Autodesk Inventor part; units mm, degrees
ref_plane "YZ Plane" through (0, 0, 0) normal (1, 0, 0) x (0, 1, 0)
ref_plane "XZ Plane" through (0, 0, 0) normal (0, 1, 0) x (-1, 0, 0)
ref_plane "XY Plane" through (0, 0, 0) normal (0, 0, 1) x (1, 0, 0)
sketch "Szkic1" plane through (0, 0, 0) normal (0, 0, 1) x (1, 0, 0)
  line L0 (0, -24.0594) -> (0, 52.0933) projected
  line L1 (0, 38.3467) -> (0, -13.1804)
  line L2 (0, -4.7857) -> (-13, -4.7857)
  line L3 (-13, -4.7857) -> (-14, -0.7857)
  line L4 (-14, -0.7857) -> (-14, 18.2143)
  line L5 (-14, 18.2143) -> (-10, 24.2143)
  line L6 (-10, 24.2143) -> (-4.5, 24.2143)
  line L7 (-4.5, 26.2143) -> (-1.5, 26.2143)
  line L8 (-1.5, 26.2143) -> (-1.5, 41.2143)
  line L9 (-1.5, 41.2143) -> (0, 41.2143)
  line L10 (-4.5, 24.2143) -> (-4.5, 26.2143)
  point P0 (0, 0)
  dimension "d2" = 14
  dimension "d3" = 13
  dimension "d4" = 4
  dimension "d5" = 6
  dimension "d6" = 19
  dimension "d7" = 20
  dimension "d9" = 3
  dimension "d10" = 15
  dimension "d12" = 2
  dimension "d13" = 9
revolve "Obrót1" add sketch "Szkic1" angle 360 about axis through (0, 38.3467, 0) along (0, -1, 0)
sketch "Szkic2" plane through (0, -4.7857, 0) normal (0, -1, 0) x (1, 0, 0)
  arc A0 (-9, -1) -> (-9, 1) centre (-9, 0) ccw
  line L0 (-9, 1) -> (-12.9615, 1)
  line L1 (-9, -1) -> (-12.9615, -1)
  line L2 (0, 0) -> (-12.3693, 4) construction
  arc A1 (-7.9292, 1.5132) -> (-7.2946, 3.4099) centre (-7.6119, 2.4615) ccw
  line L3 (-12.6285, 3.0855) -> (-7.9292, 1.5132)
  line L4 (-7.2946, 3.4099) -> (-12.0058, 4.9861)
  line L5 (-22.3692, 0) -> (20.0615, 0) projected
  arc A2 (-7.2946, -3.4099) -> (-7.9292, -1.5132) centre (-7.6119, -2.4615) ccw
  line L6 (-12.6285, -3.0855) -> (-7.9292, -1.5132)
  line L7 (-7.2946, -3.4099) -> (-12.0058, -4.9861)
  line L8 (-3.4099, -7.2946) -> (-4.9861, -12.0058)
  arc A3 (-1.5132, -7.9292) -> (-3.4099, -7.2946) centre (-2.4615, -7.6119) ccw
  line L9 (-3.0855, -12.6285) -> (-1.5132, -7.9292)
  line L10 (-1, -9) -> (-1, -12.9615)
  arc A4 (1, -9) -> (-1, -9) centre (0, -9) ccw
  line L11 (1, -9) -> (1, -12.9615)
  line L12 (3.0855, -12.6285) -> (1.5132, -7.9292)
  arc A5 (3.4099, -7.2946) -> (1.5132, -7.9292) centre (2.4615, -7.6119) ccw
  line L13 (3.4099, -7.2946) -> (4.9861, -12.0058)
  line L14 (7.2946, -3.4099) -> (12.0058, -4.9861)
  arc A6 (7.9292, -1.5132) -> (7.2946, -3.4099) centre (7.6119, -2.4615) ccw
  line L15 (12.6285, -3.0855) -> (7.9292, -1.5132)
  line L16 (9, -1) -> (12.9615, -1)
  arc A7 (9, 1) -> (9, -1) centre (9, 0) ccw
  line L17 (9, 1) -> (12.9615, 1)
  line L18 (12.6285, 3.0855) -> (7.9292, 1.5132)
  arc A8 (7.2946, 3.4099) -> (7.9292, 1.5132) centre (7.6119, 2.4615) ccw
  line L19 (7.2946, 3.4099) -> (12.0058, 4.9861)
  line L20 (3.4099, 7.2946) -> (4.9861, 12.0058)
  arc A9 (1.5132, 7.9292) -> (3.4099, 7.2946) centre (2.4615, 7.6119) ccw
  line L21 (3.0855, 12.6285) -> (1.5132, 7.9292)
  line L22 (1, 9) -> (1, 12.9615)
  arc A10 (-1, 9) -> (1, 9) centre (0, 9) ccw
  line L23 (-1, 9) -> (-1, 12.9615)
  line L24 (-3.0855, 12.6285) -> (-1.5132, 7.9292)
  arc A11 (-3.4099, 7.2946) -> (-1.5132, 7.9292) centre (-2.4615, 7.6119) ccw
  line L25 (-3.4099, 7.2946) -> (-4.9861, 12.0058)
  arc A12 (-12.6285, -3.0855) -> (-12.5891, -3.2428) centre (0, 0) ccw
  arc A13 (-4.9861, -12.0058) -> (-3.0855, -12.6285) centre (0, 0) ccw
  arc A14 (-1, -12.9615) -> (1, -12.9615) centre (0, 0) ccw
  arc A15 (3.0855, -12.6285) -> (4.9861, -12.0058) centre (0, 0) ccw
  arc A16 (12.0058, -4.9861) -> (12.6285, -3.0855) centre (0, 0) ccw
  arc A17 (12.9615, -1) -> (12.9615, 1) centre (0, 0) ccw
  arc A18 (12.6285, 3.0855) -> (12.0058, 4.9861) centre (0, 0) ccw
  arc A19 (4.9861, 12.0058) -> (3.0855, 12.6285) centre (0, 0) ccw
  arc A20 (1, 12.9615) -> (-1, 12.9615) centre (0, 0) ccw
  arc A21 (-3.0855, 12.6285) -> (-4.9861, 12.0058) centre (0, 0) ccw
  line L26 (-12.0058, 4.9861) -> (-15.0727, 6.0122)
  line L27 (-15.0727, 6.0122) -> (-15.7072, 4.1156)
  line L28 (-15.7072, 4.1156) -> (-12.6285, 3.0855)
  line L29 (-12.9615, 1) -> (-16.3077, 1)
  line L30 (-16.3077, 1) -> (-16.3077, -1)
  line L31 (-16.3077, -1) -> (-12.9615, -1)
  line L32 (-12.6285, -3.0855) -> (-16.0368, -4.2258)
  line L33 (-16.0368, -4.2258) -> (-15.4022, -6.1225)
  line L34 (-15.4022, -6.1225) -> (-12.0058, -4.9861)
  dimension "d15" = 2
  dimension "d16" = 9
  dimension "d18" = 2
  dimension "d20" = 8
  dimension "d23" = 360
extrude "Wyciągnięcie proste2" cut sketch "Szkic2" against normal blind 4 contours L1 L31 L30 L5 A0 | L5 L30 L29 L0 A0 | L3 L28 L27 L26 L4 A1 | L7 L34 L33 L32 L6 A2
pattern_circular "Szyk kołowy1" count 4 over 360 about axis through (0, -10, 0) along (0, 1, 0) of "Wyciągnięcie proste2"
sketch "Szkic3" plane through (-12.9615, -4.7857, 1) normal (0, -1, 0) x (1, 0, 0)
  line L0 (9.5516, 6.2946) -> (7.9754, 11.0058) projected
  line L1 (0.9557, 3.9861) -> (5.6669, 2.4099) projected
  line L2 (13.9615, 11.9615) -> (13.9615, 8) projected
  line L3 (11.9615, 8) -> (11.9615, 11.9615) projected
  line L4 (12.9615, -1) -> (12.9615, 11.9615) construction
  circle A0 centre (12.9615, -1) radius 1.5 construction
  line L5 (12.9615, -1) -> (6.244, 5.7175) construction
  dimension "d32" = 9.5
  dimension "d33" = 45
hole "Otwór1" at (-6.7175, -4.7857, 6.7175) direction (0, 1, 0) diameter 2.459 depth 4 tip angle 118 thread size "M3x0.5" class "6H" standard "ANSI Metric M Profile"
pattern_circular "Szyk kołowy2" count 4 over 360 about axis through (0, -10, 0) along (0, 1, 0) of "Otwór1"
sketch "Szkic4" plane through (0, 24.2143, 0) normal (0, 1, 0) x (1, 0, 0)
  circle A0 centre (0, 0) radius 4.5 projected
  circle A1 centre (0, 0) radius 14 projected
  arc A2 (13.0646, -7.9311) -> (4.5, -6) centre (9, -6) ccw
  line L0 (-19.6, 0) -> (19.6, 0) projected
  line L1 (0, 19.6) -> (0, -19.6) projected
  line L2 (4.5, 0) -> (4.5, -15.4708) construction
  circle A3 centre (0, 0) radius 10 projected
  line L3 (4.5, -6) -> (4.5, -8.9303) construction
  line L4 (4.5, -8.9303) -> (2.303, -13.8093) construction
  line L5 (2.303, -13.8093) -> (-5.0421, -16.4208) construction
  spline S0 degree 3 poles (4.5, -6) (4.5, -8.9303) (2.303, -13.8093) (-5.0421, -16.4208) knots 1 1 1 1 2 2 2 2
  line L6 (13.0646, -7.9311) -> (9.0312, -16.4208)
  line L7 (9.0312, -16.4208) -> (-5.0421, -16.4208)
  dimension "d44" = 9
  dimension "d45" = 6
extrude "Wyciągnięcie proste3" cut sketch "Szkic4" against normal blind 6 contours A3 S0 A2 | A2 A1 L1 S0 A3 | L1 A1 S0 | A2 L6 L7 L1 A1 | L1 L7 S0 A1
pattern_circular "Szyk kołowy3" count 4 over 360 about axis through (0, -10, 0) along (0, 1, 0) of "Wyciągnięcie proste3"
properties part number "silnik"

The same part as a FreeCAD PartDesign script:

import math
import FreeCAD as App
import Part
import Sketcher
Q = App.Units.Quantity


def add_polygon(sketch, points):
    """Adds a closed chain of lines whose ends are joined by coincident constraints."""
    first, n = sketch.GeometryCount, len(points)
    for a, b in zip(points, points[1:] + points[:1]):
        sketch.addGeometry(Part.LineSegment(App.Vector(*a, 0), App.Vector(*b, 0)), False)
    for i in range(n):
        sketch.addConstraint(Sketcher.Constraint("Coincident", first + i, 2, first + (i + 1) % n, 1))

doc = App.newDocument("Part")
body = doc.addObject("PartDesign::Body", "Body")

sketch1 = doc.addObject("Sketcher::SketchObject", "Sketch")
body.addObject(sketch1)
sketch1.AttachmentSupport = (doc.XY_Plane, [""])
sketch1.MapMode = "FlatFace"
add_polygon(sketch1, [(-13, -4.7857), (0, -4.7857), (0, 41.2143), (-1.5, 41.2143), (-1.5, 26.2143), (-4.5, 26.2143), (-4.5, 24.2143), (-10, 24.2143), (-14, 18.2143), (-14, -0.7857)])
sketch1.addConstraint([
    Sketcher.Constraint("Horizontal", 0),
    Sketcher.Constraint("Vertical", 1),
    Sketcher.Constraint("Horizontal", 2),
    Sketcher.Constraint("Vertical", 3),
    Sketcher.Constraint("Horizontal", 4),
    Sketcher.Constraint("Vertical", 5),
    Sketcher.Constraint("Horizontal", 6),
    Sketcher.Constraint("Vertical", 8),
    Sketcher.Constraint("PointOnObject", 0, 2, -2),
    Sketcher.Constraint("DistanceX", 0, 1, 0, 2, 13.0),
    Sketcher.Constraint("DistanceX", 4, 2, 4, 1, 3.0),
    Sketcher.Constraint("DistanceY", 3, 2, 3, 1, 15.0),
    Sketcher.Constraint("DistanceY", 5, 2, 5, 1, 2.0),
    Sketcher.Constraint("DistanceY", 8, 2, 8, 1, 19.0),
    Sketcher.Constraint("DistanceX", 7, 2, -1, 1, 14.0),
    Sketcher.Constraint("DistanceX", 7, 2, 6, 2, 4.0),
    Sketcher.Constraint("DistanceY", 7, 2, 6, 2, 6.0),
    Sketcher.Constraint("DistanceY", 0, 2, 8, 2, 4.0),
    Sketcher.Constraint("DistanceX", 2, 2, 2, 1, 1.5),
    Sketcher.Constraint("DistanceY", 0, 2, -1, 1, 4.7857),
])
revolution = doc.addObject("PartDesign::Revolution", "Revolution")
body.addObject(revolution)
revolution.Profile = sketch1
revolution.ReferenceAxis = (sketch1, ["V_Axis"])
revolution.Angle = 360

sketch2 = doc.addObject("Sketcher::SketchObject", "Sketch001")
body.addObject(sketch2)
sketch2.AttachmentSupport = (doc.XZ_Plane, [""])
sketch2.MapMode = "FlatFace"
sketch2.AttachmentOffset = App.Placement(App.Vector(0, 0, 4.7857), App.Rotation())
sketch2.addGeometry([
    Part.ArcOfCircle(Part.Circle(App.Vector(-9, 0, 0), App.Vector(0, 0, 1), 1), math.radians(-90), math.radians(90)),
    Part.LineSegment(App.Vector(-9, 1, 0), App.Vector(-16.3077, 1, 0)),
    Part.LineSegment(App.Vector(-16.3077, 1, 0), App.Vector(-16.3077, -1, 0)),
    Part.LineSegment(App.Vector(-16.3077, -1, 0), App.Vector(-9, -1, 0)),
    Part.LineSegment(App.Vector(-12.6285, 3.0855, 0), App.Vector(-7.9292, 1.5132, 0)),
    Part.ArcOfCircle(Part.Circle(App.Vector(-7.6119, 2.4615, 0), App.Vector(0, 0, 1), 0.999976), math.radians(-108.500177), math.radians(71.501641)),
    Part.LineSegment(App.Vector(-7.2946, 3.4099, 0), App.Vector(-12.0058, 4.9861, 0)),
    Part.LineSegment(App.Vector(-12.0058, 4.9861, 0), App.Vector(-15.0727, 6.0122, 0)),
    Part.LineSegment(App.Vector(-15.0727, 6.0122, 0), App.Vector(-15.7072, 4.1156, 0)),
    Part.LineSegment(App.Vector(-15.7072, 4.1156, 0), App.Vector(-12.6285, 3.0855, 0)),
    Part.LineSegment(App.Vector(-12.0058, -4.9861, 0), App.Vector(-7.2946, -3.4099, 0)),
    Part.ArcOfCircle(Part.Circle(App.Vector(-7.6119, -2.4615, 0), App.Vector(0, 0, 1), 1.000071), math.radians(-71.501641), math.radians(108.500177)),
    Part.LineSegment(App.Vector(-7.9292, -1.5132, 0), App.Vector(-12.6285, -3.0855, 0)),
    Part.LineSegment(App.Vector(-12.6285, -3.0855, 0), App.Vector(-16.0368, -4.2258, 0)),
    Part.LineSegment(App.Vector(-16.0368, -4.2258, 0), App.Vector(-15.4022, -6.1225, 0)),
    Part.LineSegment(App.Vector(-15.4022, -6.1225, 0), App.Vector(-12.0058, -4.9861, 0)),
], False)
sketch2.addConstraint([
    Sketcher.Constraint("Tangent", 0, 2, 1, 1),
    Sketcher.Constraint("Coincident", 1, 2, 2, 1),
    Sketcher.Constraint("Coincident", 2, 2, 3, 1),
    Sketcher.Constraint("Tangent", 3, 2, 0, 1),
    Sketcher.Constraint("Tangent", 4, 2, 5, 1),
    Sketcher.Constraint("Tangent", 5, 2, 6, 1),
    Sketcher.Constraint("Coincident", 6, 2, 7, 1),
    Sketcher.Constraint("Coincident", 7, 2, 8, 1),
    Sketcher.Constraint("Coincident", 8, 2, 9, 1),
    Sketcher.Constraint("Coincident", 9, 2, 4, 1),
    Sketcher.Constraint("Tangent", 10, 2, 11, 1),
    Sketcher.Constraint("Tangent", 11, 2, 12, 1),
    Sketcher.Constraint("Coincident", 12, 2, 13, 1),
    Sketcher.Constraint("Coincident", 13, 2, 14, 1),
    Sketcher.Constraint("Coincident", 14, 2, 15, 1),
    Sketcher.Constraint("Coincident", 15, 2, 10, 1),
    Sketcher.Constraint("Horizontal", 1),
    Sketcher.Constraint("Vertical", 2),
    Sketcher.Constraint("Horizontal", 3),
    Sketcher.Constraint("Equal", 0, 5),
    Sketcher.Constraint("Equal", 5, 11),
    Sketcher.Constraint("Symmetric", 5, 3, 11, 3, -1),
    Sketcher.Constraint("Symmetric", 9, 2, 12, 2, -1),
    Sketcher.Constraint("Symmetric", 6, 2, 15, 2, -1),
    Sketcher.Constraint("PointOnObject", 0, 3, -1),
    Sketcher.Constraint("Parallel", 4, 6),
    Sketcher.Constraint("Parallel", 6, 7),
    Sketcher.Constraint("Perpendicular", 7, 8),
    Sketcher.Constraint("Perpendicular", 8, 9),
    Sketcher.Constraint("Parallel", 12, 13),
    Sketcher.Constraint("Perpendicular", 13, 14),
    Sketcher.Constraint("Perpendicular", 14, 15),
    Sketcher.Constraint("Radius", 0, 1.0),
    Sketcher.Constraint("DistanceX", 0, 3, -1, 1, 9.0),
    Sketcher.Constraint("Angle", 4, Q("-18.4993 deg")),
    Sketcher.Constraint("DistanceY", 10, 2, -1, 1, 3.41),
    Sketcher.Constraint("DistanceY", 9, 2, 8, 2, 1.03),
    Sketcher.Constraint("Distance", 7, 3.234),
    Sketcher.Constraint("Distance", 13, 3.594),
    Sketcher.Constraint("DistanceX", 1, 2, 1, 1, 7.3077),
    Sketcher.Constraint("DistanceX", 5, 3, -1, 1, 7.612),
    Sketcher.Constraint("DistanceY", -1, 1, 6, 2, 4.986),
])
pocket1 = doc.addObject("PartDesign::Pocket", "Pocket")
body.addObject(pocket1)
pocket1.Profile = sketch2
pocket1.Length = 4
doc.recompute()

polarpattern = doc.addObject("PartDesign::PolarPattern", "PolarPattern")
body.addObject(polarpattern)
polarpattern.Originals = [pocket1]
polarpattern.Axis = (doc.Y_Axis, [""])
polarpattern.Angle = 360
polarpattern.Occurrences = 4
body.Tip = polarpattern

sketch3 = doc.addObject("Sketcher::SketchObject", "Sketch002")
body.addObject(sketch3)
sketch3.AttachmentSupport = (doc.XZ_Plane, [""])
sketch3.MapMode = "FlatFace"
sketch3.AttachmentOffset = App.Placement(App.Vector(0, 0, 4.7857), App.Rotation())
sketch3.addGeometry(Part.Circle(App.Vector(-6.7175, 6.7175, 0), App.Vector(0, 0, 1), 1.2295), False)
sketch3.addConstraint([
    Sketcher.Constraint("Diameter", 0, 2.459),
    Sketcher.Constraint("DistanceX", 0, 3, -1, 1, 6.7175),
    Sketcher.Constraint("DistanceY", -1, 1, 0, 3, 6.7175),
])
doc.recompute()
hole = doc.addObject("PartDesign::Hole", "Hole")
body.addObject(hole)
hole.Profile = sketch3
hole.ThreadType = "None"
hole.Diameter = 2.459
hole.DepthType = "Dimension"
hole.Depth = 4
hole.DrillPoint = "Angled"
hole.DrillPointAngle = 118
doc.recompute()

polarpattern2 = doc.addObject("PartDesign::PolarPattern", "PolarPattern001")
body.addObject(polarpattern2)
polarpattern2.Originals = [hole]
polarpattern2.Axis = (doc.Y_Axis, [""])
polarpattern2.Angle = 360
polarpattern2.Occurrences = 4
body.Tip = polarpattern2

sketch4 = doc.addObject("Sketcher::SketchObject", "Sketch003")
body.addObject(sketch4)
sketch4.AttachmentSupport = (doc.XZ_Plane, [""])
sketch4.MapMode = "FlatFace"
sketch4.AttachmentOffset = App.Placement(App.Vector(0, 0, -24.2143), App.Rotation())
sketch4.addGeometry([
    Part.BSplineCurve([App.Vector(4.5, 6, 0), App.Vector(4.5, 6.939418, 0), App.Vector(4.2742, 8.079116, 0), App.Vector(3.725366, 9.280175, 0)], [4, 4], [1, 1.320587543], False, 3, [1, 1, 1, 1], False),
    Part.BSplineCurve([App.Vector(3.725366, 9.280175, 0), App.Vector(3.043809, 10.771681, 0), App.Vector(1.864091, 12.357814, 0), App.Vector(0, 13.772537, 0)], [4, 4], [1.320587543, 1.71870116], False, 3, [1, 1, 1, 1], False),
    Part.BSplineCurve([App.Vector(0, 13.772537, 0), App.Vector(-0.099119, 13.847761, 0), App.Vector(-0.200172, 13.922501, 0), App.Vector(-0.303189, 13.996717, 0)], [4, 4], [1.71870116, 1.7398699], False, 3, [1, 1, 1, 1], False),
    Part.BSplineCurve([App.Vector(-0.303189, 13.996717, 0), App.Vector(-1.569097, 14.908704, 0), App.Vector(-3.131418, 15.74147, 0), App.Vector(-5.0421, 16.4208, 0)], [4, 4], [1.7398699, 2], False, 3, [1, 1, 1, 1], False),
    Part.LineSegment(App.Vector(-5.0421, 16.4208, 0), App.Vector(9.0312, 16.4208, 0)),
    Part.LineSegment(App.Vector(9.0312, 16.4208, 0), App.Vector(13.0646, 7.9311, 0)),
    Part.ArcOfCircle(Part.Circle(App.Vector(9, 6, 0), App.Vector(0, 0, 1), 4.500013), math.radians(180), math.radians(385.412491)),
], False)
sketch4.addConstraint([
    Sketcher.Constraint("Block", 0),
    Sketcher.Constraint("Block", 1),
    Sketcher.Constraint("Block", 2),
    Sketcher.Constraint("Block", 3),
    Sketcher.Constraint("Coincident", 3, 2, 4, 1),
    Sketcher.Constraint("Coincident", 4, 2, 5, 1),
    Sketcher.Constraint("Tangent", 5, 2, 6, 2),
    Sketcher.Constraint("Coincident", 6, 1, 0, 1),
    Sketcher.Constraint("Horizontal", 4),
    Sketcher.Constraint("Radius", 6, 4.5),
    Sketcher.Constraint("DistanceY", -1, 1, 6, 3, 6.0),
    Sketcher.Constraint("DistanceX", 4, 1, 4, 2, 14.0733),
])
pocket2 = doc.addObject("PartDesign::Pocket", "Pocket001")
body.addObject(pocket2)
pocket2.Profile = sketch4
pocket2.Length = 6
pocket2.Reversed = True
doc.recompute()

polarpattern3 = doc.addObject("PartDesign::PolarPattern", "PolarPattern002")
body.addObject(polarpattern3)
polarpattern3.Originals = [pocket2]
polarpattern3.Axis = (doc.Y_Axis, [""])
polarpattern3.Angle = 360
polarpattern3.Occurrences = 4
body.Tip = polarpattern3

doc.recompute()
